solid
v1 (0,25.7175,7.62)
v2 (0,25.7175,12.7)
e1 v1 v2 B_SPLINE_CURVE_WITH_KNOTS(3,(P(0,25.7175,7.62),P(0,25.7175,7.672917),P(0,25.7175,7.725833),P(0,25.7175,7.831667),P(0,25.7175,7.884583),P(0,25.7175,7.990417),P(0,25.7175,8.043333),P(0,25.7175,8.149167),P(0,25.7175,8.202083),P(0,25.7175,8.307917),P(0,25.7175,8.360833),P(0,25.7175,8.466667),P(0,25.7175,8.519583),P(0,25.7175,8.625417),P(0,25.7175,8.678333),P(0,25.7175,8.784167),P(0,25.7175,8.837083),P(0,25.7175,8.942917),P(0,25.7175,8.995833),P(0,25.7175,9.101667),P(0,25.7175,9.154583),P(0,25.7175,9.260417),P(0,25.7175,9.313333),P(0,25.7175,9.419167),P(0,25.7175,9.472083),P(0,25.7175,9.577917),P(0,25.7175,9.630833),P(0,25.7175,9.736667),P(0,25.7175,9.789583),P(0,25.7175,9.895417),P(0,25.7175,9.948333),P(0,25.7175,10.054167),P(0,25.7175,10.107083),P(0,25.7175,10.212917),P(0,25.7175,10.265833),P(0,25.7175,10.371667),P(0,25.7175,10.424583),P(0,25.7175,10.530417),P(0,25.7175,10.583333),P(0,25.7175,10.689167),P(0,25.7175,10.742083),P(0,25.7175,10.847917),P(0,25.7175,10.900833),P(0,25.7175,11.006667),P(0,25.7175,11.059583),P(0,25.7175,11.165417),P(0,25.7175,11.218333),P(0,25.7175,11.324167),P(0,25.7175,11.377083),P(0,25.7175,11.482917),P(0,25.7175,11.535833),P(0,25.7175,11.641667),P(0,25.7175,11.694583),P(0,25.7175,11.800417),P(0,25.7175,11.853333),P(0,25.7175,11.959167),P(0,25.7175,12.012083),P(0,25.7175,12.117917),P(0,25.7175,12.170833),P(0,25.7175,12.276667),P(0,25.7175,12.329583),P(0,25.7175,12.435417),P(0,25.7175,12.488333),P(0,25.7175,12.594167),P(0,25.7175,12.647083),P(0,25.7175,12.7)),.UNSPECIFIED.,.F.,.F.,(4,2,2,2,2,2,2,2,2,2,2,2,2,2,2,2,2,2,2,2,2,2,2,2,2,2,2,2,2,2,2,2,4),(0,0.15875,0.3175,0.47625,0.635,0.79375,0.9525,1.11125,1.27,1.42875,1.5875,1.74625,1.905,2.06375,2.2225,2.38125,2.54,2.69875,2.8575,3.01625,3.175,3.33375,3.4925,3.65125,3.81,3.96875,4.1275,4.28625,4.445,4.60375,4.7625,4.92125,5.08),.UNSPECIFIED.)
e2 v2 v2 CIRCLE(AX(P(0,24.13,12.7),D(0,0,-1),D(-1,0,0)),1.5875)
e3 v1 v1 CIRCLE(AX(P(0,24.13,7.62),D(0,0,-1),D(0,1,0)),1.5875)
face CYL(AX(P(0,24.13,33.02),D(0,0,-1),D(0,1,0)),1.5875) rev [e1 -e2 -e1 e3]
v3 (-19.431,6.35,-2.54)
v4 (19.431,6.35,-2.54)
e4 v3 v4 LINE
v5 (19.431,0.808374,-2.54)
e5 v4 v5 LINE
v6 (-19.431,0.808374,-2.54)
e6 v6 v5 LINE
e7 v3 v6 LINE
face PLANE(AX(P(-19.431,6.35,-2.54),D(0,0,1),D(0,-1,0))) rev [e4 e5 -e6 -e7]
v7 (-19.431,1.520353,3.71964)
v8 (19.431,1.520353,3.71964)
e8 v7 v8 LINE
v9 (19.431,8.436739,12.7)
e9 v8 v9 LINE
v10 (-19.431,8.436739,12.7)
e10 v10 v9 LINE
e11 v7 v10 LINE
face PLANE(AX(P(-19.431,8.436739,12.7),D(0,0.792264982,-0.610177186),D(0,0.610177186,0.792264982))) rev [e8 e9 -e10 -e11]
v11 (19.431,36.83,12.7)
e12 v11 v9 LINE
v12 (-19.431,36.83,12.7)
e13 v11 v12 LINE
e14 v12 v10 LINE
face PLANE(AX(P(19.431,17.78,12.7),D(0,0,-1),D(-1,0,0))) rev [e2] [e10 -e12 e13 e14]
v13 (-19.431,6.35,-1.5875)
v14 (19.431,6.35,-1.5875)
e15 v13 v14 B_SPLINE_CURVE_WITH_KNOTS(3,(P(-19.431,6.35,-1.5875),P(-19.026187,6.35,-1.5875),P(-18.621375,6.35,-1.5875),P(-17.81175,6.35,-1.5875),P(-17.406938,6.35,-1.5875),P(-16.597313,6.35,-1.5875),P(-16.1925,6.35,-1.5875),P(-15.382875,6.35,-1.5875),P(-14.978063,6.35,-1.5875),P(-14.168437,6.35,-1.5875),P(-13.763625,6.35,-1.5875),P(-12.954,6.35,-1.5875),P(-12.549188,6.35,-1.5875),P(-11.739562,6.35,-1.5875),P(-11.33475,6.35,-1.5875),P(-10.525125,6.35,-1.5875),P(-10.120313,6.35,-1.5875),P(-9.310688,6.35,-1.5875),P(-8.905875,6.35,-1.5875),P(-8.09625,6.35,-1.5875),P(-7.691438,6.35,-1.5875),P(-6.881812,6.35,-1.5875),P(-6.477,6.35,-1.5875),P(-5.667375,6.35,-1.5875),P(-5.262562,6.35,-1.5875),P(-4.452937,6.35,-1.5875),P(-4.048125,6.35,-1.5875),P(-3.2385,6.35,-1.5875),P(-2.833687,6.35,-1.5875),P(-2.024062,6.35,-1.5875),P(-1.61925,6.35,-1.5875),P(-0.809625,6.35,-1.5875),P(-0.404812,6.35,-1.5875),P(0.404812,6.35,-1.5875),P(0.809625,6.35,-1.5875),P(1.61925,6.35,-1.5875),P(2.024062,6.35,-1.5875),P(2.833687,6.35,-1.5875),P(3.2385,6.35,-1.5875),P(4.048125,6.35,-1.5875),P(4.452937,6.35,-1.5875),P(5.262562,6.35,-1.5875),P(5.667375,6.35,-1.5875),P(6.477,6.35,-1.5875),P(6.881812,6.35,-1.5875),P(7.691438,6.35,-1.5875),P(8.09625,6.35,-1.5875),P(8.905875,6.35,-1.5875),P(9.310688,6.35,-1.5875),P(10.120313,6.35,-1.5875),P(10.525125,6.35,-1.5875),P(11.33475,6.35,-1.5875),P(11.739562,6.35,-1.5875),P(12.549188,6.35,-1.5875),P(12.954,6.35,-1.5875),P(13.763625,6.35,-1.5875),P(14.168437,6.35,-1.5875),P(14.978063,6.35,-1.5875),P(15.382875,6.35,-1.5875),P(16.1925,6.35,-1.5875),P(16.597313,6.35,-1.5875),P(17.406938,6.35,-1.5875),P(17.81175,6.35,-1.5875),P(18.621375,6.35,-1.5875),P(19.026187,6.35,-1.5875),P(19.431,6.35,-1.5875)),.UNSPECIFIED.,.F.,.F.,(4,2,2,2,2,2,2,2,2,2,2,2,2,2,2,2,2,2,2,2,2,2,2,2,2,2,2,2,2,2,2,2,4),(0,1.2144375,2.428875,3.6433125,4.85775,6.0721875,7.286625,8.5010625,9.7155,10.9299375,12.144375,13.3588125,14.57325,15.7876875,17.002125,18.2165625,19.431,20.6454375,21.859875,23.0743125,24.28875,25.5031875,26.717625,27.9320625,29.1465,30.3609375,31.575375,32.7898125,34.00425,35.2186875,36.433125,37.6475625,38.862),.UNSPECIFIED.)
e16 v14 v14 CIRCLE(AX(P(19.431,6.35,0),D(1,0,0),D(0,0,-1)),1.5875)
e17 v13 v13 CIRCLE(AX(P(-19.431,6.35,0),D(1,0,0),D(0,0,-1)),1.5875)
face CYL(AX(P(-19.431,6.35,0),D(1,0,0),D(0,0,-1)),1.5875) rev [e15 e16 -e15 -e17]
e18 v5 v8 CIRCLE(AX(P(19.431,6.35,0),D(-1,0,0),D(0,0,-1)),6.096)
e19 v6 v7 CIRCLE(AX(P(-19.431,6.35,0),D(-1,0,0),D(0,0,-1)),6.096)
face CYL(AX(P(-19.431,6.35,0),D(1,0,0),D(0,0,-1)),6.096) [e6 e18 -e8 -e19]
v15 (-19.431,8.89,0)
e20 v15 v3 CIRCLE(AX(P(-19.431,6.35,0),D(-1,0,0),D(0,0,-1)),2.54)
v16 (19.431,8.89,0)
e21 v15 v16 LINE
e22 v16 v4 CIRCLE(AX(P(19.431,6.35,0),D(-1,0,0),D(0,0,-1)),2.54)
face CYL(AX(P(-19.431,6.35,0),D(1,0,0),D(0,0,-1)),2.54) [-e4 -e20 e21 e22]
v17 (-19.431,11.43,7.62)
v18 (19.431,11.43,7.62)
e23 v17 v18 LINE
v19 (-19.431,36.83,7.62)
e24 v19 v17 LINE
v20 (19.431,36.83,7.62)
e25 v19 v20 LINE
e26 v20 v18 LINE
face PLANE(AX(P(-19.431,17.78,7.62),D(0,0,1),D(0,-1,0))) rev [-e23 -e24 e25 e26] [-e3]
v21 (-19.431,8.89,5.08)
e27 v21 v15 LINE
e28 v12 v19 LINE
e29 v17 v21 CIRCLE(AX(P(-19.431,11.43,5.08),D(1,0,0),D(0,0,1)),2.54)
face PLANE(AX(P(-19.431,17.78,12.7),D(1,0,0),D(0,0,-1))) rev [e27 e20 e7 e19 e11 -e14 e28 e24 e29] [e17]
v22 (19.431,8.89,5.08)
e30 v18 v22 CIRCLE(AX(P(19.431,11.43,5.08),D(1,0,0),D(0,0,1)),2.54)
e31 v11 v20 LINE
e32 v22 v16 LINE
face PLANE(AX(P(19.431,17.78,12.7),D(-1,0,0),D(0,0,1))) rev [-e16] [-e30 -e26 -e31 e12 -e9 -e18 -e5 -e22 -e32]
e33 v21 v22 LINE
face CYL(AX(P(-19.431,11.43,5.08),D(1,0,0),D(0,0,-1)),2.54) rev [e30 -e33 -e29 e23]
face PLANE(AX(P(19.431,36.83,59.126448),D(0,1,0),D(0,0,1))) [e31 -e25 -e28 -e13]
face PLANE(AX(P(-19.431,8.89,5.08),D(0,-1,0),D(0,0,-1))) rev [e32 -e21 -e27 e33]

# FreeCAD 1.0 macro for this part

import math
import FreeCAD as App
import Part
import Sketcher

V = App.Vector
Q = App.Units.Quantity


def add_polygon(sketch, points):
    """Adds a closed chain of lines whose ends are joined by coincident constraints."""
    first, n = sketch.GeometryCount, len(points)
    for a, b in zip(points, points[1:] + points[:1]):
        sketch.addGeometry(Part.LineSegment(App.Vector(*a, 0), App.Vector(*b, 0)), False)
    for i in range(n):
        sketch.addConstraint(Sketcher.Constraint("Coincident", first + i, 2, first + (i + 1) % n, 1))

doc = App.newDocument("Part")
params = doc.addObject("Spreadsheet::Sheet", "Params")
for row, (alias, value) in enumerate([
    ("sketch1_height", "1 in"),
    ("sketch1_width", "1.53 in"),
    ("pad1_length", "0.7 in"),
    ("sketch2_diameter", "0.125 in"),
    ("sketch3_radius", "0.1 in"),
    ("sketch3_width", "0.7 in"),
    ("sketch3_height", "0.2 in"),
    ("sketch3_height2", "0.4 in"),
    ("sketch4_height", "1 in"),
    ("sketch4_width", "1.53 in"),
    ("pad2_length", "0.2 in"),
    ("sketch5_diameter", "0.125 in"),
    ("pocket3_length", "1 in"),
    ("sketch6_radius", "0.25 in"),
    ("sketch6_height", "0.5 in"),
    ("sketch6_height2", "0.1 in"),
    ("sketch7_radius", "0.25 in"),
    ("sketch7_radius2", "0.24 in"),
], start=1):
    params.set(f"A{row}", alias)
    params.set(f"B{row}", "=" + value)
    params.setAlias(f"B{row}", alias)

body = doc.addObject("PartDesign::Body", "Body")

sketch1 = body.newObject("Sketcher::SketchObject", "Sketch")
sketch1.AttachmentSupport = (doc.getObject("XZ_Plane"), [""])
sketch1.MapMode = "FlatFace"
add_polygon(sketch1, [(-19, -13), (-19, 13), (19, 13), (19, -13)])
sketch1.addConstraint([
    Sketcher.Constraint("Vertical", 0),
    Sketcher.Constraint("Horizontal", 1),
    Sketcher.Constraint("Vertical", 2),
    Sketcher.Constraint("Horizontal", 3),
    Sketcher.Constraint("Symmetric", 0, 2, 2, 2, -1, 1),
    Sketcher.Constraint("DistanceY", 0, 1, 0, 2, Q("1 in")),
    Sketcher.Constraint("DistanceX", 1, 1, 1, 2, Q("1.53 in")),
])
sketch1.setExpression("Constraints[9]", "Params.sketch1_height")
sketch1.setExpression("Constraints[10]", "Params.sketch1_width")
pad1 = body.newObject("PartDesign::Pad", "Pad")
pad1.Profile = sketch1
pad1.setExpression("Length", "Params.pad1_length")
pad1.Reversed = True

sketch2 = body.newObject("Sketcher::SketchObject", "Sketch001")
sketch2.AttachmentSupport = (doc.getObject("YZ_Plane"), [""])
sketch2.MapMode = "FlatFace"
sketch2.AttachmentOffset = App.Placement(V(0, 0, 0.765 * 25.4), App.Rotation())
sketch2.addGeometry(Part.Circle(V(6.3, 0, 0), V(0, 0, 1), 1.6), False)
sketch2.addConstraint([
    Sketcher.Constraint("PointOnObject", 0, 3, -1),
    Sketcher.Constraint("Diameter", 0, Q("0.125 in")),
    Sketcher.Constraint("DistanceX", -1, 1, 0, 3, Q("0.25 in")),
])
sketch2.setExpression("Constraints[1]", "Params.sketch2_diameter")
pocket1 = body.newObject("PartDesign::Pocket", "Pocket")
pocket1.Profile = sketch2
pocket1.Type = "ThroughAll"

sketch3 = body.newObject("Sketcher::SketchObject", "Sketch002")
sketch3.AttachmentSupport = (doc.getObject("YZ_Plane"), [""])
sketch3.MapMode = "FlatFace"
sketch3.AttachmentOffset = App.Placement(V(0, 0, 0.765 * 25.4), App.Rotation())
sketch3.addGeometry([
    Part.LineSegment(V(17.8, 7.6, 0), V(11.4, 7.6, 0)),
    Part.ArcOfCircle(Part.Circle(V(11.4, 5.1, 0), V(0, 0, 1), 2.5), math.radians(90), math.radians(180)),
    Part.LineSegment(V(8.9, 5.1, 0), V(8.9, 0, 0)),
    Part.ArcOfCircle(Part.Circle(V(6.3, 0, 0), V(0, 0, 1), 2.5), math.radians(-90), math.radians(0)),
    Part.LineSegment(V(6.3, -2.5, 0), V(0, -2.5, 0)),
    Part.LineSegment(V(0, -2.5, 0), V(0, -12.7, 0)),
    Part.LineSegment(V(0, -12.7, 0), V(17.8, -12.7, 0)),
    Part.LineSegment(V(17.8, -12.7, 0), V(17.8, 7.6, 0)),
], False)
sketch3.addConstraint([
    Sketcher.Constraint("Tangent", 0, 2, 1, 1),
    Sketcher.Constraint("Tangent", 1, 2, 2, 1),
    Sketcher.Constraint("Tangent", 2, 2, 3, 2),
    Sketcher.Constraint("Tangent", 3, 1, 4, 1),
    Sketcher.Constraint("Coincident", 4, 2, 5, 1),
    Sketcher.Constraint("Coincident", 5, 2, 6, 1),
    Sketcher.Constraint("Coincident", 6, 2, 7, 1),
    Sketcher.Constraint("Coincident", 7, 2, 0, 1),
    Sketcher.Constraint("Horizontal", 0),
    Sketcher.Constraint("Vertical", 2),
    Sketcher.Constraint("Horizontal", 4),
    Sketcher.Constraint("Vertical", 5),
    Sketcher.Constraint("Horizontal", 6),
    Sketcher.Constraint("Vertical", 7),
    Sketcher.Constraint("Equal", 1, 3),
    Sketcher.Constraint("PointOnObject", 3, 3, -1),
    Sketcher.Constraint("PointOnObject", 4, 2, -2),
    Sketcher.Constraint("Equal", 0, 4),
    Sketcher.Constraint("Radius", 1, Q("0.1 in")),
    Sketcher.Constraint("DistanceX", 6, 1, 6, 2, Q("0.7 in")),
    Sketcher.Constraint("DistanceY", 2, 2, 2, 1, Q("0.2 in")),
    Sketcher.Constraint("DistanceY", 5, 2, 5, 1, Q("0.4 in")),
])
sketch3.setExpression("Constraints[18]", "Params.sketch3_radius")
sketch3.setExpression("Constraints[19]", "Params.sketch3_width")
sketch3.setExpression("Constraints[20]", "Params.sketch3_height")
sketch3.setExpression("Constraints[21]", "Params.sketch3_height2")
pocket2 = body.newObject("PartDesign::Pocket", "Pocket001")
pocket2.Profile = sketch3
pocket2.Type = "ThroughAll"

sketch4 = body.newObject("Sketcher::SketchObject", "Sketch003")
sketch4.AttachmentSupport = (doc.getObject("XY_Plane"), [""])
sketch4.MapMode = "FlatFace"
sketch4.AttachmentOffset = App.Placement(V(0, 0, 0.3 * 25.4), App.Rotation())
add_polygon(sketch4, [(19, 37), (19, 11), (-19, 11), (-19, 37)])
sketch4.addConstraint([
    Sketcher.Constraint("Vertical", 0),
    Sketcher.Constraint("Horizontal", 1),
    Sketcher.Constraint("Vertical", 2),
    Sketcher.Constraint("Horizontal", 3),
    Sketcher.Constraint("DistanceY", 0, 2, 0, 1, Q("1 in")),
    Sketcher.Constraint("DistanceX", 1, 2, 1, 1, Q("1.53 in")),
    Sketcher.Constraint("DistanceY", -1, 1, 0, 2, Q("0.45 in")),
    Sketcher.Constraint("DistanceX", -1, 1, 0, 2, Q("0.765 in")),
])
sketch4.setExpression("Constraints[8]", "Params.sketch4_height")
sketch4.setExpression("Constraints[9]", "Params.sketch4_width")
pad2 = body.newObject("PartDesign::Pad", "Pad001")
pad2.Profile = sketch4
pad2.setExpression("Length", "Params.pad2_length")

sketch5 = body.newObject("Sketcher::SketchObject", "Sketch004")
sketch5.AttachmentSupport = (doc.getObject("XY_Plane"), [""])
sketch5.MapMode = "FlatFace"
sketch5.AttachmentOffset = App.Placement(V(0, 0, 0.3 * 25.4), App.Rotation())
sketch5.addGeometry(Part.Circle(V(0, 24.1, 0), V(0, 0, 1), 1.6), False)
sketch5.addConstraint([
    Sketcher.Constraint("PointOnObject", 0, 3, -2),
    Sketcher.Constraint("Diameter", 0, Q("0.125 in")),
    Sketcher.Constraint("DistanceY", -1, 1, 0, 3, Q("0.95 in")),
])
sketch5.setExpression("Constraints[1]", "Params.sketch5_diameter")
pocket3 = body.newObject("PartDesign::Pocket", "Pocket002")
pocket3.Profile = sketch5
pocket3.setExpression("Length", "Params.pocket3_length")
pocket3.Reversed = True

sketch6 = body.newObject("Sketcher::SketchObject", "Sketch005")
sketch6.AttachmentSupport = (doc.getObject("YZ_Plane"), [""])
sketch6.MapMode = "FlatFace"
sketch6.AttachmentOffset = App.Placement(V(0, 0, 0.765 * 25.4), App.Rotation())
sketch6.addGeometry([
    Part.ArcOfCircle(Part.Circle(V(6.4, 0, 0), V(0, 0, 1), 6.4), math.radians(142), math.radians(180)),
    Part.LineSegment(V(1.3, 3.9, 0), V(8.1, 12.7, 0)),
    Part.LineSegment(V(8.1, 12.7, 0), V(0, 12.7, 0)),
    Part.LineSegment(V(0, 12.7, 0), V(0, 0, 0)),
    Part.ArcOfCircle(Part.Circle(V(6.4, 0, 0), V(0, 0, 1), 6.4), math.radians(-180), math.radians(-156)),
    Part.LineSegment(V(0, 0, 0), V(0, -2.5, 0)),
    Part.LineSegment(V(0, -2.5, 0), V(0.5, -2.5, 0)),
], False)
sketch6.addConstraint([
    Sketcher.Constraint("Tangent", 0, 1, 1, 1),
    Sketcher.Constraint("Coincident", 1, 2, 2, 1),
    Sketcher.Constraint("Coincident", 2, 2, 3, 1),
    Sketcher.Constraint("Tangent", 3, 2, 0, 2),
    Sketcher.Constraint("Tangent", 4, 1, 5, 1),
    Sketcher.Constraint("Coincident", 5, 2, 6, 1),
    Sketcher.Constraint("Coincident", 6, 2, 4, 2),
    Sketcher.Constraint("Horizontal", 2),
    Sketcher.Constraint("Vertical", 3),
    Sketcher.Constraint("Vertical", 5),
    Sketcher.Constraint("Horizontal", 6),
    Sketcher.Constraint("Coincident", 3, 2, -1, 1),
    Sketcher.Constraint("Coincident", 4, 1, -1, 1),
    Sketcher.Constraint("Equal", 0, 4),
    Sketcher.Constraint("Radius", 0, Q("0.25 in")),
    Sketcher.Constraint("DistanceY", 3, 2, 3, 1, Q("0.5 in")),
    Sketcher.Constraint("DistanceY", 5, 2, 5, 1, Q("0.1 in")),
    Sketcher.Constraint("DistanceX", 2, 2, 2, 1, Q("8.116139 mm")),
])
sketch6.setExpression("Constraints[14]", "Params.sketch6_radius")
sketch6.setExpression("Constraints[15]", "Params.sketch6_height")
sketch6.setExpression("Constraints[16]", "Params.sketch6_height2")
pocket4 = body.newObject("PartDesign::Pocket", "Pocket003")
pocket4.Profile = sketch6
pocket4.Type = "ThroughAll"

sketch7 = body.newObject("Sketcher::SketchObject", "Sketch006")
sketch7.AttachmentSupport = (doc.getObject("YZ_Plane"), [""])
sketch7.MapMode = "FlatFace"
sketch7.AttachmentOffset = App.Placement(V(0, 0, 0.765 * 25.4), App.Rotation())
sketch7.addGeometry([
    Part.LineSegment(V(1.52, 3.72, 0), V(8.44, 12.7, 0)),
    Part.LineSegment(V(8.44, 12.7, 0), V(8.12, 12.7, 0)),
    Part.LineSegment(V(8.12, 12.7, 0), V(1.32, 3.87, 0)),
    Part.ArcOfCircle(Part.Circle(V(6.35, 0, 0), V(0, 0, 1), 6.35), math.radians(142), math.radians(204)),
    Part.LineSegment(V(0.53, -2.54, 0), V(0.81, -2.54, 0)),
    Part.ArcOfCircle(Part.Circle(V(6.35, 0, 0), V(0, 0, 1), 6.1), math.radians(142), math.radians(205)),
], False)
sketch7.addConstraint([
    Sketcher.Constraint("Coincident", 0, 2, 1, 1),
    Sketcher.Constraint("Coincident", 1, 2, 2, 1),
    Sketcher.Constraint("Tangent", 2, 2, 3, 1),
    Sketcher.Constraint("Coincident", 3, 2, 4, 1),
    Sketcher.Constraint("Coincident", 4, 2, 5, 2),
    Sketcher.Constraint("Tangent", 5, 1, 0, 1),
    Sketcher.Constraint("Horizontal", 1),
    Sketcher.Constraint("Horizontal", 4),
    Sketcher.Constraint("Coincident", 5, 3, 3, 3),
    Sketcher.Constraint("PointOnObject", 3, 3, -1),
    Sketcher.Constraint("Parallel", 0, 2),
    Sketcher.Constraint("Radius", 3, Q("0.25 in")),
    Sketcher.Constraint("Radius", 5, Q("0.24 in")),
    Sketcher.Constraint("DistanceY", -1, 1, 0, 2, Q("0.5 in")),
    Sketcher.Constraint("DistanceY", 3, 2, -1, 1, Q("0.1 in")),
    Sketcher.Constraint("DistanceX", -1, 1, 3, 3, Q("0.25 in")),
    Sketcher.Constraint("DistanceX", 1, 2, 1, 1, Q("0.3206 mm")),
])
sketch7.setExpression("Constraints[11]", "Params.sketch7_radius")
sketch7.setExpression("Constraints[12]", "Params.sketch7_radius2")
pocket5 = body.newObject("PartDesign::Pocket", "Pocket004")
pocket5.Profile = sketch7
pocket5.Type = "ThroughAll"

doc.recompute()
